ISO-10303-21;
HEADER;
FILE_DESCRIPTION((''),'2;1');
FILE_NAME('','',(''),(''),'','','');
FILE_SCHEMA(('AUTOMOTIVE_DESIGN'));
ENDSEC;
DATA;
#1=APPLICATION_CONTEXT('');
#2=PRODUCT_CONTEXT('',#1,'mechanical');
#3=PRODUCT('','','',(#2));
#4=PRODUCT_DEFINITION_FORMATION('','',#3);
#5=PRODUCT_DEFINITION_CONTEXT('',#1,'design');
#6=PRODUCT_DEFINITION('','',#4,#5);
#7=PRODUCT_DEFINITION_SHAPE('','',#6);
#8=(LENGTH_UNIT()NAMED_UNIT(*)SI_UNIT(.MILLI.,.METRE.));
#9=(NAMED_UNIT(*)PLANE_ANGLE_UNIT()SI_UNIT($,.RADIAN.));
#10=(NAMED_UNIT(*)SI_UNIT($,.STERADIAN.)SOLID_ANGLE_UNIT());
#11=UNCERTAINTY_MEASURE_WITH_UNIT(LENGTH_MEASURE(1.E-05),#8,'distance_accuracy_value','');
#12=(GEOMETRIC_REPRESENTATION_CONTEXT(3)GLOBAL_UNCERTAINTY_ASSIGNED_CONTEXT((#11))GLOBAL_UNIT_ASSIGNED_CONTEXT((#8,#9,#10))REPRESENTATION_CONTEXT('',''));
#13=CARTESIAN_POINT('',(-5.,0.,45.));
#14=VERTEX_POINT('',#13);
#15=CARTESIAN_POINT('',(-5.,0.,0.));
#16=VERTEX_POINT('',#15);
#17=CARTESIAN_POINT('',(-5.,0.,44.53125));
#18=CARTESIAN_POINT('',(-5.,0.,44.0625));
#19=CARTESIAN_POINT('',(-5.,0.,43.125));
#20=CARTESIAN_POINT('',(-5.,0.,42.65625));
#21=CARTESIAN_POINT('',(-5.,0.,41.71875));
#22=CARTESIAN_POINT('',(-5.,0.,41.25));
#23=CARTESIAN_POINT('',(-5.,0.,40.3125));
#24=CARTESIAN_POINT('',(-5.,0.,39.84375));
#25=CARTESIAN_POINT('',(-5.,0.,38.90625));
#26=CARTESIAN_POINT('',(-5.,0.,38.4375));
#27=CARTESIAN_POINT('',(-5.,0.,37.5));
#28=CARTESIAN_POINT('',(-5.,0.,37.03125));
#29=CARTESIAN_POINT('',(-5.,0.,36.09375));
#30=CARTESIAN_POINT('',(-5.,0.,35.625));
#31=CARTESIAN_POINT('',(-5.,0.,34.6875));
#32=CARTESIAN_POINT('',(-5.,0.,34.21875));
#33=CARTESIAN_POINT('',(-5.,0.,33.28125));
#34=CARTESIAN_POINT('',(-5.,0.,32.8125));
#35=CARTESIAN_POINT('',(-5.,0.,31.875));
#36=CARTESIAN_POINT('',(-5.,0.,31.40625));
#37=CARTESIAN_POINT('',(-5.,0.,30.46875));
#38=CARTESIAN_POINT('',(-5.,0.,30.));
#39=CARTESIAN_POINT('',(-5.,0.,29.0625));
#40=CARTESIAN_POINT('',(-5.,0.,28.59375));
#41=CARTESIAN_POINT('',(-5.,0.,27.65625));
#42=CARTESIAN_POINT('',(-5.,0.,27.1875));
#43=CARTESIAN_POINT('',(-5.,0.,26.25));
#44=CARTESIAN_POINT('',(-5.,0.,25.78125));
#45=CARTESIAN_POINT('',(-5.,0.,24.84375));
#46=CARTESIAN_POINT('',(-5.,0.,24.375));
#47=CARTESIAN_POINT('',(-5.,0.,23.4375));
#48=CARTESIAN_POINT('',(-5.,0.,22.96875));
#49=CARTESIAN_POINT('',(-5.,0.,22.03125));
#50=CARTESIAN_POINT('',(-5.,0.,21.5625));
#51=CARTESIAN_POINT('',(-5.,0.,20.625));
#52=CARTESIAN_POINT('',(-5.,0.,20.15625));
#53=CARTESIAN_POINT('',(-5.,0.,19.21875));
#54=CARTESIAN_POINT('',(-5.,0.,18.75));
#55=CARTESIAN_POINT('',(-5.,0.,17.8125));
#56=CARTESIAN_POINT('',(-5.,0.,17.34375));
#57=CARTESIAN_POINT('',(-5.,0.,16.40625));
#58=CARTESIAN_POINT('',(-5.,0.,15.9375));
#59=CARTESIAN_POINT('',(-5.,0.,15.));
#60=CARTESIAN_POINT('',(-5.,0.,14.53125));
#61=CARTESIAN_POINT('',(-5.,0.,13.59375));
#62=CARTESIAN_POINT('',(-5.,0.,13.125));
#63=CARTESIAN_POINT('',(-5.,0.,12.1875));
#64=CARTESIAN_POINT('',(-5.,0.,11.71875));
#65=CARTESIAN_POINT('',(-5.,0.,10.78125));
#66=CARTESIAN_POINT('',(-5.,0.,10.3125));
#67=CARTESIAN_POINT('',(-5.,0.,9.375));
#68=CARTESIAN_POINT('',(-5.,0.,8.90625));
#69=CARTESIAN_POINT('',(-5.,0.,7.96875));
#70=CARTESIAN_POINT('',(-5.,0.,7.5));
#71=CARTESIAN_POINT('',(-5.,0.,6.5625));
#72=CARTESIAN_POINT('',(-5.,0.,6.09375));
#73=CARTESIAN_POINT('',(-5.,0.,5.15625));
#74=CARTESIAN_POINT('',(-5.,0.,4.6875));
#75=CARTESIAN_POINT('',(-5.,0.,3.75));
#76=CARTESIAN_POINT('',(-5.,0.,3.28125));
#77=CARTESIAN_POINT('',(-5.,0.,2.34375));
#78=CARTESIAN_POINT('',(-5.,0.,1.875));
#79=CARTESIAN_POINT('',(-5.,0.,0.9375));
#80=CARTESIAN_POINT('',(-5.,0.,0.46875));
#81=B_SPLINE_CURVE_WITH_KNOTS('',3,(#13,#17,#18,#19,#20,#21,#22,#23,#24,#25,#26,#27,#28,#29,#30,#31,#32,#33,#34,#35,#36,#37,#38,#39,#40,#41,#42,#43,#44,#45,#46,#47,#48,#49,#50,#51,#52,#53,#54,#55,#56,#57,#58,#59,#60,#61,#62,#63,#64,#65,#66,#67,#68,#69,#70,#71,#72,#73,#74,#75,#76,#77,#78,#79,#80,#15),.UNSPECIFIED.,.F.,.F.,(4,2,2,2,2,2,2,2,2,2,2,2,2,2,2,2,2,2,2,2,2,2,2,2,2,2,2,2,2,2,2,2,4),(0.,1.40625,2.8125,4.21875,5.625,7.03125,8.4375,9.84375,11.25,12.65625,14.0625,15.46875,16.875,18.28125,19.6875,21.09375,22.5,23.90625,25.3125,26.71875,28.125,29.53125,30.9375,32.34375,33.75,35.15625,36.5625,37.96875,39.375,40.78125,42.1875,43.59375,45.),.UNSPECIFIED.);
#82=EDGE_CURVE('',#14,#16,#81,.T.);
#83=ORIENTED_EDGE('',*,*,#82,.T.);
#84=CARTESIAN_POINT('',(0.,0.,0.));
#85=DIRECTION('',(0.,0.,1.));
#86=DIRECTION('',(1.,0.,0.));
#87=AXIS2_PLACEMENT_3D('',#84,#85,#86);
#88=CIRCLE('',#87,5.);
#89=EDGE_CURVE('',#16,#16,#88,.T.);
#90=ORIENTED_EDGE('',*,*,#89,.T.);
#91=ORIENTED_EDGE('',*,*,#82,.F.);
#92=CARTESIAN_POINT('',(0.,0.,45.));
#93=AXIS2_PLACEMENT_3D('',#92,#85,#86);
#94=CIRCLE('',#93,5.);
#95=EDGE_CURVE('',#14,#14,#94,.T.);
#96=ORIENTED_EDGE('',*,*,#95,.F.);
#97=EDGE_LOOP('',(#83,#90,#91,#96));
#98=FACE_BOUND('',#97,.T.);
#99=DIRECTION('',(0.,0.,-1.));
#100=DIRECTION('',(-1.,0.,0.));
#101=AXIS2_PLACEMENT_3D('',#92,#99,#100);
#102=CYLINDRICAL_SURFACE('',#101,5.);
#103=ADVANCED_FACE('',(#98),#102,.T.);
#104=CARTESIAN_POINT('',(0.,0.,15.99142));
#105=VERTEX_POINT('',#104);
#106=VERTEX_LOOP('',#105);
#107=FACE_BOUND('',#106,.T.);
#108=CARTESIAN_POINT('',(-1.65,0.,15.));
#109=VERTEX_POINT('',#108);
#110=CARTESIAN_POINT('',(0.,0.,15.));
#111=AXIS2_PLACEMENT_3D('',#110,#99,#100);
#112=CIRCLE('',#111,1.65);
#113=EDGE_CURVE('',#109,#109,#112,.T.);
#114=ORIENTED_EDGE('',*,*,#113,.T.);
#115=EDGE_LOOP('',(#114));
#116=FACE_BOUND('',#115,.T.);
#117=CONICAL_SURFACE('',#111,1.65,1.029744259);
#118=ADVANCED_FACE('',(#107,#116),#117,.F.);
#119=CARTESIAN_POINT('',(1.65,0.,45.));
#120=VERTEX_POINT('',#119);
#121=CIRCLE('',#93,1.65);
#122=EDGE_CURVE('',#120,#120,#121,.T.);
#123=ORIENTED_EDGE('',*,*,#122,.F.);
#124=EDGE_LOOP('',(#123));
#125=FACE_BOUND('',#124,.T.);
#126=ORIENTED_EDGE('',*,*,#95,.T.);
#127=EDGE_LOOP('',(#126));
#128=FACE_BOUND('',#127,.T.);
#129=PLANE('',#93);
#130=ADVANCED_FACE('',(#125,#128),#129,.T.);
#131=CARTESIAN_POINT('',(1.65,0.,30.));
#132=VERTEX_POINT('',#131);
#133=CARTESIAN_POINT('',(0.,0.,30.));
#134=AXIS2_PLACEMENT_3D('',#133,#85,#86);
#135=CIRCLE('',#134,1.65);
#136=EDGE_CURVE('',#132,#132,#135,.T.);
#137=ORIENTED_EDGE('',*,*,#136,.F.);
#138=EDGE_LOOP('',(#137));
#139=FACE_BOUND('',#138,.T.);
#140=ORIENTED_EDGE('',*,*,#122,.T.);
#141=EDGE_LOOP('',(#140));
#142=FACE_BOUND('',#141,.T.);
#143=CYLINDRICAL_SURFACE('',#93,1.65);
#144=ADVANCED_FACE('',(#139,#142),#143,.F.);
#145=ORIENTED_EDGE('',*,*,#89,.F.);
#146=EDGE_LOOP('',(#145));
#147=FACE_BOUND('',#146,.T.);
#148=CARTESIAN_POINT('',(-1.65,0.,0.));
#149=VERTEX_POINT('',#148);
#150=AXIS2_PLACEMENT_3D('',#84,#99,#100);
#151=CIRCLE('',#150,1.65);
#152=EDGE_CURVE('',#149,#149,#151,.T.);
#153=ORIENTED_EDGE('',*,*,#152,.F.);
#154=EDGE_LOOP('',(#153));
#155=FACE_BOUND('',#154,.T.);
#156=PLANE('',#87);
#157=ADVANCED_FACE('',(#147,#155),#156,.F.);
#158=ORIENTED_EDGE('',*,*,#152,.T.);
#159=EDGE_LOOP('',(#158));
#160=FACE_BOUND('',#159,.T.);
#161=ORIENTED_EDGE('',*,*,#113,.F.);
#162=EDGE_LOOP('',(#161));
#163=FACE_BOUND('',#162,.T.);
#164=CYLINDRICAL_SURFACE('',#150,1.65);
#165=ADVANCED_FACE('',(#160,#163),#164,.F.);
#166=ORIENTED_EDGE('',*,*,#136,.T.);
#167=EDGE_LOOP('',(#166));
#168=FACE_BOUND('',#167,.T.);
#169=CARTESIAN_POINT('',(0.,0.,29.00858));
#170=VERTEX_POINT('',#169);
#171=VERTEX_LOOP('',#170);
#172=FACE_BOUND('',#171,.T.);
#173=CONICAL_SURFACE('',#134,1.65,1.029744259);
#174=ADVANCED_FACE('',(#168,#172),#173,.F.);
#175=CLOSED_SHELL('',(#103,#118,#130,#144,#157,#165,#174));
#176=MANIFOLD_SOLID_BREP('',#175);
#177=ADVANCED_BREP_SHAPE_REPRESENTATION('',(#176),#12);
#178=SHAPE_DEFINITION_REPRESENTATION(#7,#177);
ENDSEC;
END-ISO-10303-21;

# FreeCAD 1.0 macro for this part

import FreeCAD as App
import Part
import Sketcher
from FreeCAD import Vector
Q = App.Units.Quantity


def add_polygon(sketch, points):
    """Adds a closed chain of lines whose ends are joined by coincident constraints."""
    first, n = sketch.GeometryCount, len(points)
    for a, b in zip(points, points[1:] + points[:1]):
        sketch.addGeometry(Part.LineSegment(App.Vector(*a, 0), App.Vector(*b, 0)), False)
    for i in range(n):
        sketch.addConstraint(Sketcher.Constraint("Coincident", first + i, 2, first + (i + 1) % n, 1))

doc = App.newDocument("Part")
params = doc.addObject("Spreadsheet::Sheet", "Params")
for row, (alias, value) in enumerate([
    ("sketch1_diameter", "10 mm"),
    ("pad1_length", "45 mm"),
    ("sketch2_height", "15 mm"),
    ("sketch2_width", "1.65 mm"),
    ("groove_angle", "360 deg"),
], start=1):
    params.set(f"A{row}", alias)
    params.set(f"B{row}", "=" + value)
    params.setAlias(f"B{row}", alias)

body = doc.addObject("PartDesign::Body", "Body")

# Sketch on XY plane
sketch1 = doc.addObject("Sketcher::SketchObject", "Sketch")
body.addObject(sketch1)
sketch1.AttachmentSupport = (doc.XY_Plane, [""])
sketch1.MapMode = "FlatFace"
sketch1.addGeometry(Part.Circle(Vector(0, 0, 0), Vector(0, 0, 1), 5), False)
sketch1.addConstraint([
    Sketcher.Constraint("Coincident", 0, 3, -1, 1),
    Sketcher.Constraint("Diameter", 0, Q("10 mm")),
])
sketch1.setExpression("Constraints[1]", "Params.sketch1_diameter")
pad1 = doc.addObject("PartDesign::Pad", "Pad")
body.addObject(pad1)
pad1.Profile = sketch1
pad1.setExpression("Length", "Params.pad1_length")

# Sketch on YZ plane
sketch2 = doc.addObject("Sketcher::SketchObject", "Sketch001")
body.addObject(sketch2)
sketch2.AttachmentSupport = (doc.YZ_Plane, [""])
sketch2.MapMode = "FlatFace"
add_polygon(sketch2, [(0, 29.00858), (0, 45), (-1.65, 45), (-1.65, 30)])  # lines 0-3
sketch2.addConstraint([
    Sketcher.Constraint("Vertical", 0),
    Sketcher.Constraint("Horizontal", 1),
    Sketcher.Constraint("Vertical", 2),
    Sketcher.Constraint("PointOnObject", 0, 2, -2),
    Sketcher.Constraint("DistanceY", 2, 2, 2, 1, Q("15 mm")),
    Sketcher.Constraint("Angle", 3, Q("-31 deg")),
    Sketcher.Constraint("DistanceY", -1, 1, 0, 2, Q("45 mm")),
    Sketcher.Constraint("DistanceX", 1, 2, 1, 1, Q("1.65 mm")),
])
sketch2.setExpression("Constraints[8]", "Params.sketch2_height")
sketch2.setExpression("Constraints[11]", "Params.sketch2_width")
groove = doc.addObject("PartDesign::Groove", "Groove")
body.addObject(groove)
groove.Profile = sketch2
groove.ReferenceAxis = (sketch2, ["V_Axis"])
groove.setExpression("Angle", "Params.groove_angle")
doc.recompute()

datumplane = doc.addObject("PartDesign::Plane", "DatumPlane")
body.addObject(datumplane)
datumplane.AttachmentSupport = (doc.XY_Plane, [""])
datumplane.MapMode = "FlatFace"
datumplane.AttachmentOffset = App.Placement(Vector(0, 0, 22.5), App.Rotation())
mirrored = doc.addObject("PartDesign::Mirrored", "Mirrored")
body.addObject(mirrored)
mirrored.Originals = [groove]
mirrored.MirrorPlane = (datumplane, [""])
body.Tip = mirrored

doc.recompute()
